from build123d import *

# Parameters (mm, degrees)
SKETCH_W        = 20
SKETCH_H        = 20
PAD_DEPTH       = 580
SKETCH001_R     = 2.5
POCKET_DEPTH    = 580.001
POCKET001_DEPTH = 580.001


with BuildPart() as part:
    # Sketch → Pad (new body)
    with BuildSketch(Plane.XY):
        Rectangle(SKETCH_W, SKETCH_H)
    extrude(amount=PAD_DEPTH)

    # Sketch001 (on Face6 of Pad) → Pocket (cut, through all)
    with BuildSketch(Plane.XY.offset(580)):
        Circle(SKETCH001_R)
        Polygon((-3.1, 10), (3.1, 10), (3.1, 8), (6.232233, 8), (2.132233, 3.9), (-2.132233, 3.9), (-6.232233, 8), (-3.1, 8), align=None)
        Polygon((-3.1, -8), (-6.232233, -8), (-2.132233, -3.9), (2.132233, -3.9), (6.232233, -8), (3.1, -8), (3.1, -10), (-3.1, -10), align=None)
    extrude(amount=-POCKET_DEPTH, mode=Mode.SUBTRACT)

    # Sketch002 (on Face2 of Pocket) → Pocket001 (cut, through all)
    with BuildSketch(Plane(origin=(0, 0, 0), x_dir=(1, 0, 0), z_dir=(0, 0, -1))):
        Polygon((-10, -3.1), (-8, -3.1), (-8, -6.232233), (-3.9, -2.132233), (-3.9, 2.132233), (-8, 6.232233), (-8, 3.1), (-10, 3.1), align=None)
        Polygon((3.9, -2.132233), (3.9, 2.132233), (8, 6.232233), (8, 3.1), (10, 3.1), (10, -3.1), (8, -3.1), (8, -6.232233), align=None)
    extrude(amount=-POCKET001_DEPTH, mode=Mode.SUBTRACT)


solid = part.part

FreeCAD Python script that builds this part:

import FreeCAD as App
import Part
import Sketcher

V = App.Vector
Q = App.Units.Quantity


def add_polygon(sketch, points):
    """Adds a closed chain of lines whose ends are joined by coincident constraints."""
    first, n = sketch.GeometryCount, len(points)
    for a, b in zip(points, points[1:] + points[:1]):
        sketch.addGeometry(Part.LineSegment(App.Vector(*a, 0), App.Vector(*b, 0)), False)
    for i in range(n):
        sketch.addConstraint(Sketcher.Constraint("Coincident", first + i, 2, first + (i + 1) % n, 1))

doc = App.newDocument("Part")
body = doc.addObject("PartDesign::Body", "Body")

# Sketch on XY plane
sketch1 = doc.addObject("Sketcher::SketchObject", "Sketch")
body.addObject(sketch1)
sketch1.AttachmentSupport = (doc.XY_Plane, [""])
sketch1.MapMode = "FlatFace"
add_polygon(sketch1, [(-10, 10), (-10, -10), (10, -10), (10, 10)])  # lines 0-3
sketch1.addConstraint(Sketcher.Constraint("Vertical", 0))
sketch1.addConstraint(Sketcher.Constraint("Horizontal", 1))
sketch1.addConstraint(Sketcher.Constraint("Vertical", 2))
sketch1.addConstraint(Sketcher.Constraint("Horizontal", 3))
sketch1.addConstraint(Sketcher.Constraint("Symmetric", 0, 2, 2, 2, -1, 1))
sketch1.addConstraint(Sketcher.Constraint("Equal", 3, 0))
sketch1.addConstraint(Sketcher.Constraint("DistanceX", 1, 1, 1, 2, Q("20 mm")))
pad1 = doc.addObject("PartDesign::Pad", "Pad")
body.addObject(pad1)
pad1.Profile = sketch1
pad1.Length = 580

# Sketch on XY plane
sketch2 = doc.addObject("Sketcher::SketchObject", "Sketch001")
body.addObject(sketch2)
sketch2.AttachmentSupport = (doc.XY_Plane, [""])
sketch2.MapMode = "FlatFace"
sketch2.AttachmentOffset = App.Placement(V(0, 0, 580), App.Rotation())
sketch2.addGeometry(Part.Circle(V(0, 0, 0), V(0, 0, 1), 2.5), False)  # 0
add_polygon(sketch2, [(3.1, 10), (-3.1, 10), (-3.1, 8), (-6.2, 8), (-2.1, 3.9), (2.1, 3.9), (6.2, 8), (3.1, 8)])  # lines 1-8
add_polygon(sketch2, [(-6.2, -8), (-3.1, -8), (-3.1, -10), (3.1, -10), (3.1, -8), (6.2, -8), (2.1, -3.9), (-2.1, -3.9)])  # lines 9-16
sketch2.addConstraint(Sketcher.Constraint("Horizontal", 1))
sketch2.addConstraint(Sketcher.Constraint("Vertical", 2))
sketch2.addConstraint(Sketcher.Constraint("Horizontal", 3))
sketch2.addConstraint(Sketcher.Constraint("Horizontal", 5))
sketch2.addConstraint(Sketcher.Constraint("Horizontal", 7))
sketch2.addConstraint(Sketcher.Constraint("Vertical", 8))
sketch2.addConstraint(Sketcher.Constraint("Horizontal", 9))
sketch2.addConstraint(Sketcher.Constraint("Vertical", 10))
sketch2.addConstraint(Sketcher.Constraint("Horizontal", 11))
sketch2.addConstraint(Sketcher.Constraint("Vertical", 12))
sketch2.addConstraint(Sketcher.Constraint("Horizontal", 13))
sketch2.addConstraint(Sketcher.Constraint("Horizontal", 15))
sketch2.addConstraint(Sketcher.Constraint("Coincident", 0, 3, -1, 1))
sketch2.addConstraint(Sketcher.Constraint("Symmetric", 7, 2, 9, 2, -1, 1))
sketch2.addConstraint(Sketcher.Constraint("Symmetric", 1, 2, 11, 2, -1, 1))
sketch2.addConstraint(Sketcher.Constraint("Symmetric", 3, 2, 13, 2, -1, 1))
sketch2.addConstraint(Sketcher.Constraint("Symmetric", 4, 2, 14, 2, -1, 1))
sketch2.addConstraint(Sketcher.Constraint("Symmetric", 3, 2, 6, 2, -2))
sketch2.addConstraint(Sketcher.Constraint("Perpendicular", 4, 6))
sketch2.addConstraint(Sketcher.Constraint("Perpendicular", 14, 16))
sketch2.addConstraint(Sketcher.Constraint("Vertical", 2, 2, 9, 2))
sketch2.addConstraint(Sketcher.Constraint("Vertical", 5, 2, 14, 2))
sketch2.addConstraint(Sketcher.Constraint("Vertical", 4, 2, 15, 2))
sketch2.addConstraint(Sketcher.Constraint("Diameter", 0, Q("5 mm")))
sketch2.addConstraint(Sketcher.Constraint("DistanceY", 2, 2, 2, 1, Q("2 mm")))
sketch2.addConstraint(Sketcher.Constraint("DistanceX", 1, 2, 1, 1, Q("6.2 mm")))
sketch2.addConstraint(Sketcher.Constraint("DistanceY", -1, 1, 1, 2, Q("10 mm")))
sketch2.addConstraint(Sketcher.Constraint("DistanceY", -1, 1, 4, 2, Q("3.9 mm")))
sketch2.addConstraint(Sketcher.Constraint("DistanceX", 3, 2, 3, 1, Q("3.132233 mm")))
pocket1 = doc.addObject("PartDesign::Pocket", "Pocket")
body.addObject(pocket1)
pocket1.Profile = sketch2
pocket1.Type = "ThroughAll"

# Sketch on XY plane
sketch3 = doc.addObject("Sketcher::SketchObject", "Sketch002")
body.addObject(sketch3)
sketch3.AttachmentSupport = (doc.XY_Plane, [""])
sketch3.MapMode = "FlatFace"
add_polygon(sketch3, [(-10, 3.1), (-8, 3.1), (-8, 6.2), (-3.9, 2.1), (-3.9, -2.1), (-8, -6.2), (-8, -3.1), (-10, -3.1)])  # lines 0-7
add_polygon(sketch3, [(3.9, -2.1), (3.9, 2.1), (8, 6.2), (8, 3.1), (10, 3.1), (10, -3.1), (8, -3.1), (8, -6.2)])  # lines 8-15
sketch3.addConstraint(Sketcher.Constraint("Horizontal", 0))
sketch3.addConstraint(Sketcher.Constraint("Vertical", 1))
sketch3.addConstraint(Sketcher.Constraint("Vertical", 3))
sketch3.addConstraint(Sketcher.Constraint("Vertical", 5))
sketch3.addConstraint(Sketcher.Constraint("Horizontal", 6))
sketch3.addConstraint(Sketcher.Constraint("Vertical", 7))
sketch3.addConstraint(Sketcher.Constraint("Vertical", 8))
sketch3.addConstraint(Sketcher.Constraint("Vertical", 10))
sketch3.addConstraint(Sketcher.Constraint("Horizontal", 11))
sketch3.addConstraint(Sketcher.Constraint("Vertical", 12))
sketch3.addConstraint(Sketcher.Constraint("Horizontal", 13))
sketch3.addConstraint(Sketcher.Constraint("Vertical", 14))
sketch3.addConstraint(Sketcher.Constraint("Symmetric", 3, 2, 8, 2, -1, 1))
sketch3.addConstraint(Sketcher.Constraint("Symmetric", 4, 2, 9, 2, -1, 1))
sketch3.addConstraint(Sketcher.Constraint("Symmetric", 6, 2, 11, 2, -1, 1))
sketch3.addConstraint(Sketcher.Constraint("Symmetric", 0, 2, 13, 2, -1, 1))
sketch3.addConstraint(Sketcher.Constraint("Symmetric", 1, 2, 9, 2, -2))
sketch3.addConstraint(Sketcher.Constraint("Perpendicular", 2, 4))
sketch3.addConstraint(Sketcher.Constraint("Perpendicular", 9, 15))
sketch3.addConstraint(Sketcher.Constraint("Horizontal", 2, 2, 8, 2))
sketch3.addConstraint(Sketcher.Constraint("Horizontal", 7, 2, 10, 2))
sketch3.addConstraint(Sketcher.Constraint("Horizontal", 4, 2, 14, 2))
sketch3.addConstraint(Sketcher.Constraint("DistanceX", 0, 1, 0, 2, Q("2 mm")))
sketch3.addConstraint(Sketcher.Constraint("DistanceY", 7, 1, 7, 2, Q("6.2 mm")))
sketch3.addConstraint(Sketcher.Constraint("DistanceX", 0, 2, -1, 1, Q("8 mm")))
sketch3.addConstraint(Sketcher.Constraint("DistanceX", 2, 2, -1, 1, Q("3.9 mm")))
sketch3.addConstraint(Sketcher.Constraint("DistanceY", 1, 1, 1, 2, Q("3.132233 mm")))
pocket2 = doc.addObject("PartDesign::Pocket", "Pocket001")
body.addObject(pocket2)
pocket2.Profile = sketch3
pocket2.Type = "ThroughAll"
pocket2.Reversed = True

doc.recompute()
